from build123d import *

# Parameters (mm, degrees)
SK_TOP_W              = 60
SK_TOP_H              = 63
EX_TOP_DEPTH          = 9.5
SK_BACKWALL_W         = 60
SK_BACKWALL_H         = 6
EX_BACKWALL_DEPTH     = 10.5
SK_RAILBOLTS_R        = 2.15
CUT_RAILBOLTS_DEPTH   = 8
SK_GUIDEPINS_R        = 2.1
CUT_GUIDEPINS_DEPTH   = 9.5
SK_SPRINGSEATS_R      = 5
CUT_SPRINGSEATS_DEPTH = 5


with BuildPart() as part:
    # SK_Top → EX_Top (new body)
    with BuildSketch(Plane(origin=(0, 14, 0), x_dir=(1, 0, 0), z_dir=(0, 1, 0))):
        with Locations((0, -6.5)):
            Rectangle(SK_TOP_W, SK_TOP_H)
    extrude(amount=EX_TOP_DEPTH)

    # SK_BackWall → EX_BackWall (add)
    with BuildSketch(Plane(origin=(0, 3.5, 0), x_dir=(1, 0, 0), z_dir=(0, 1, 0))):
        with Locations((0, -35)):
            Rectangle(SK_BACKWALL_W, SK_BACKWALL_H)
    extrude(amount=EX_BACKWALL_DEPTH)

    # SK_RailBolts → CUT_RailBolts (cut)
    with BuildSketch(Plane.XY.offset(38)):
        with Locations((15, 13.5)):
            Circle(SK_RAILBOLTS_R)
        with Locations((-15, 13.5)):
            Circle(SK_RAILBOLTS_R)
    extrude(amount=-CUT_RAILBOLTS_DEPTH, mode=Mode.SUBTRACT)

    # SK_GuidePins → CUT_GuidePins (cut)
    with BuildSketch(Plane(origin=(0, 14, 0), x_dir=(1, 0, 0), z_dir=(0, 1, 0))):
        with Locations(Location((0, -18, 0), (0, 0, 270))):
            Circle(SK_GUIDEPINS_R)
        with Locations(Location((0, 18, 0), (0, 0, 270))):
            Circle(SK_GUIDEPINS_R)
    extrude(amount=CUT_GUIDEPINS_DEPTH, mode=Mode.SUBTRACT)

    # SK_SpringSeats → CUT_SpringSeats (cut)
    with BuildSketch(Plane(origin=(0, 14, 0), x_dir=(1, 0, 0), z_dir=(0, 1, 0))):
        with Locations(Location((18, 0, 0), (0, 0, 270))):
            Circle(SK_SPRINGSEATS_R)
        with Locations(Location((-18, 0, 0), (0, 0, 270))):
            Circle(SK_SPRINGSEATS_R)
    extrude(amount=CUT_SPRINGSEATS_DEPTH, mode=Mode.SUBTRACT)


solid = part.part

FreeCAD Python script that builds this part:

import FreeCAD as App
import Part
import Sketcher


def add_polygon(sketch, points):
    """Adds a closed chain of lines whose ends are joined by coincident constraints."""
    first, n = sketch.GeometryCount, len(points)
    for a, b in zip(points, points[1:] + points[:1]):
        sketch.addGeometry(Part.LineSegment(App.Vector(*a, 0), App.Vector(*b, 0)), False)
    for i in range(n):
        sketch.addConstraint(Sketcher.Constraint("Coincident", first + i, 2, first + (i + 1) % n, 1))

doc = App.newDocument("Part")
body = doc.addObject("PartDesign::Body", "Body")

sketch1 = body.newObject("Sketcher::SketchObject", "Sketch")
sketch1.AttachmentSupport = (doc.getObject("XZ_Plane"), [""])
sketch1.MapMode = "FlatFace"
sketch1.AttachmentOffset = App.Placement(App.Vector(0, 0, -14), App.Rotation())
add_polygon(sketch1, [(-30, -25), (-30, 38), (30, 38), (30, -25)])
sketch1.addConstraint([
    Sketcher.Constraint("Vertical", 0),
    Sketcher.Constraint("Horizontal", 1),
    Sketcher.Constraint("Vertical", 2),
    Sketcher.Constraint("Horizontal", 3),
    Sketcher.Constraint("DistanceX", 1, 1, 1, 2, 60.0),
    Sketcher.Constraint("DistanceY", 0, 1, 0, 2, 63.0),
    Sketcher.Constraint("DistanceX", 0, 2, -1, 1, 30.0),
    Sketcher.Constraint("DistanceY", -1, 1, 0, 2, 38.0),
])
pad1 = body.newObject("PartDesign::Pad", "Pad")
pad1.Profile = sketch1
pad1.Length = 9.5
pad1.Reversed = True

sketch2 = body.newObject("Sketcher::SketchObject", "Sketch001")
sketch2.AttachmentSupport = (doc.getObject("XZ_Plane"), [""])
sketch2.MapMode = "FlatFace"
sketch2.AttachmentOffset = App.Placement(App.Vector(0, 0, -3.5), App.Rotation())
add_polygon(sketch2, [(-30, 32), (-30, 38), (30, 38), (30, 32)])
sketch2.addConstraint([
    Sketcher.Constraint("Vertical", 0),
    Sketcher.Constraint("Horizontal", 1),
    Sketcher.Constraint("Vertical", 2),
    Sketcher.Constraint("Horizontal", 3),
    Sketcher.Constraint("DistanceX", 1, 1, 1, 2, 60.0),
    Sketcher.Constraint("DistanceY", 0, 1, 0, 2, 6.0),
    Sketcher.Constraint("DistanceX", 0, 2, -1, 1, 30.0),
    Sketcher.Constraint("DistanceY", -1, 1, 0, 2, 38.0),
])
pad2 = body.newObject("PartDesign::Pad", "Pad001")
pad2.Profile = sketch2
pad2.Length = 10.5
pad2.Reversed = True

sketch3 = body.newObject("Sketcher::SketchObject", "Sketch002")
sketch3.AttachmentSupport = (doc.getObject("XY_Plane"), [""])
sketch3.MapMode = "FlatFace"
sketch3.AttachmentOffset = App.Placement(App.Vector(0, 0, 38), App.Rotation())
sketch3.addGeometry([
    Part.Circle(App.Vector(15, 13.5, 0), App.Vector(0, 0, 1), 2.15),
    Part.Circle(App.Vector(-15, 13.5, 0), App.Vector(0, 0, 1), 2.15),
], False)
sketch3.addConstraint([
    Sketcher.Constraint("Equal", 0, 1),
    Sketcher.Constraint("Symmetric", 0, 3, 1, 3, -2),
    Sketcher.Constraint("Diameter", 0, 4.3),
    Sketcher.Constraint("DistanceX", -1, 1, 0, 3, 15.0),
    Sketcher.Constraint("DistanceY", -1, 1, 0, 3, 13.5),
])
pocket1 = body.newObject("PartDesign::Pocket", "Pocket")
pocket1.Profile = sketch3
pocket1.Length = 8

sketch4 = body.newObject("Sketcher::SketchObject", "Sketch003")
sketch4.AttachmentSupport = (doc.getObject("XZ_Plane"), [""])
sketch4.MapMode = "FlatFace"
sketch4.AttachmentOffset = App.Placement(App.Vector(0, 0, -14), App.Rotation())
sketch4.addGeometry([
    Part.Circle(App.Vector(0, 18, 0), App.Vector(0, 0, 1), 2.1),
    Part.Circle(App.Vector(0, -18, 0), App.Vector(0, 0, 1), 2.1),
], False)
sketch4.addConstraint([
    Sketcher.Constraint("Equal", 0, 1),
    Sketcher.Constraint("Symmetric", 0, 3, 1, 3, -1, 1),
    Sketcher.Constraint("PointOnObject", 0, 3, -2),
    Sketcher.Constraint("Diameter", 0, 4.2),
    Sketcher.Constraint("DistanceY", -1, 1, 0, 3, 18.0),
])
pocket2 = body.newObject("PartDesign::Pocket", "Pocket001")
pocket2.Profile = sketch4
pocket2.Length = 9.5

sketch5 = body.newObject("Sketcher::SketchObject", "Sketch004")
sketch5.AttachmentSupport = (doc.getObject("XZ_Plane"), [""])
sketch5.MapMode = "FlatFace"
sketch5.AttachmentOffset = App.Placement(App.Vector(0, 0, -14), App.Rotation())
sketch5.addGeometry([
    Part.Circle(App.Vector(18, 0, 0), App.Vector(0, 0, 1), 5),
    Part.Circle(App.Vector(-18, 0, 0), App.Vector(0, 0, 1), 5),
], False)
sketch5.addConstraint([
    Sketcher.Constraint("Equal", 0, 1),
    Sketcher.Constraint("Symmetric", 0, 3, 1, 3, -1, 1),
    Sketcher.Constraint("PointOnObject", 0, 3, -1),
    Sketcher.Constraint("Diameter", 0, 10.0),
    Sketcher.Constraint("DistanceX", -1, 1, 0, 3, 18.0),
])
pocket3 = body.newObject("PartDesign::Pocket", "Pocket002")
pocket3.Profile = sketch5
pocket3.Length = 5

doc.recompute()
